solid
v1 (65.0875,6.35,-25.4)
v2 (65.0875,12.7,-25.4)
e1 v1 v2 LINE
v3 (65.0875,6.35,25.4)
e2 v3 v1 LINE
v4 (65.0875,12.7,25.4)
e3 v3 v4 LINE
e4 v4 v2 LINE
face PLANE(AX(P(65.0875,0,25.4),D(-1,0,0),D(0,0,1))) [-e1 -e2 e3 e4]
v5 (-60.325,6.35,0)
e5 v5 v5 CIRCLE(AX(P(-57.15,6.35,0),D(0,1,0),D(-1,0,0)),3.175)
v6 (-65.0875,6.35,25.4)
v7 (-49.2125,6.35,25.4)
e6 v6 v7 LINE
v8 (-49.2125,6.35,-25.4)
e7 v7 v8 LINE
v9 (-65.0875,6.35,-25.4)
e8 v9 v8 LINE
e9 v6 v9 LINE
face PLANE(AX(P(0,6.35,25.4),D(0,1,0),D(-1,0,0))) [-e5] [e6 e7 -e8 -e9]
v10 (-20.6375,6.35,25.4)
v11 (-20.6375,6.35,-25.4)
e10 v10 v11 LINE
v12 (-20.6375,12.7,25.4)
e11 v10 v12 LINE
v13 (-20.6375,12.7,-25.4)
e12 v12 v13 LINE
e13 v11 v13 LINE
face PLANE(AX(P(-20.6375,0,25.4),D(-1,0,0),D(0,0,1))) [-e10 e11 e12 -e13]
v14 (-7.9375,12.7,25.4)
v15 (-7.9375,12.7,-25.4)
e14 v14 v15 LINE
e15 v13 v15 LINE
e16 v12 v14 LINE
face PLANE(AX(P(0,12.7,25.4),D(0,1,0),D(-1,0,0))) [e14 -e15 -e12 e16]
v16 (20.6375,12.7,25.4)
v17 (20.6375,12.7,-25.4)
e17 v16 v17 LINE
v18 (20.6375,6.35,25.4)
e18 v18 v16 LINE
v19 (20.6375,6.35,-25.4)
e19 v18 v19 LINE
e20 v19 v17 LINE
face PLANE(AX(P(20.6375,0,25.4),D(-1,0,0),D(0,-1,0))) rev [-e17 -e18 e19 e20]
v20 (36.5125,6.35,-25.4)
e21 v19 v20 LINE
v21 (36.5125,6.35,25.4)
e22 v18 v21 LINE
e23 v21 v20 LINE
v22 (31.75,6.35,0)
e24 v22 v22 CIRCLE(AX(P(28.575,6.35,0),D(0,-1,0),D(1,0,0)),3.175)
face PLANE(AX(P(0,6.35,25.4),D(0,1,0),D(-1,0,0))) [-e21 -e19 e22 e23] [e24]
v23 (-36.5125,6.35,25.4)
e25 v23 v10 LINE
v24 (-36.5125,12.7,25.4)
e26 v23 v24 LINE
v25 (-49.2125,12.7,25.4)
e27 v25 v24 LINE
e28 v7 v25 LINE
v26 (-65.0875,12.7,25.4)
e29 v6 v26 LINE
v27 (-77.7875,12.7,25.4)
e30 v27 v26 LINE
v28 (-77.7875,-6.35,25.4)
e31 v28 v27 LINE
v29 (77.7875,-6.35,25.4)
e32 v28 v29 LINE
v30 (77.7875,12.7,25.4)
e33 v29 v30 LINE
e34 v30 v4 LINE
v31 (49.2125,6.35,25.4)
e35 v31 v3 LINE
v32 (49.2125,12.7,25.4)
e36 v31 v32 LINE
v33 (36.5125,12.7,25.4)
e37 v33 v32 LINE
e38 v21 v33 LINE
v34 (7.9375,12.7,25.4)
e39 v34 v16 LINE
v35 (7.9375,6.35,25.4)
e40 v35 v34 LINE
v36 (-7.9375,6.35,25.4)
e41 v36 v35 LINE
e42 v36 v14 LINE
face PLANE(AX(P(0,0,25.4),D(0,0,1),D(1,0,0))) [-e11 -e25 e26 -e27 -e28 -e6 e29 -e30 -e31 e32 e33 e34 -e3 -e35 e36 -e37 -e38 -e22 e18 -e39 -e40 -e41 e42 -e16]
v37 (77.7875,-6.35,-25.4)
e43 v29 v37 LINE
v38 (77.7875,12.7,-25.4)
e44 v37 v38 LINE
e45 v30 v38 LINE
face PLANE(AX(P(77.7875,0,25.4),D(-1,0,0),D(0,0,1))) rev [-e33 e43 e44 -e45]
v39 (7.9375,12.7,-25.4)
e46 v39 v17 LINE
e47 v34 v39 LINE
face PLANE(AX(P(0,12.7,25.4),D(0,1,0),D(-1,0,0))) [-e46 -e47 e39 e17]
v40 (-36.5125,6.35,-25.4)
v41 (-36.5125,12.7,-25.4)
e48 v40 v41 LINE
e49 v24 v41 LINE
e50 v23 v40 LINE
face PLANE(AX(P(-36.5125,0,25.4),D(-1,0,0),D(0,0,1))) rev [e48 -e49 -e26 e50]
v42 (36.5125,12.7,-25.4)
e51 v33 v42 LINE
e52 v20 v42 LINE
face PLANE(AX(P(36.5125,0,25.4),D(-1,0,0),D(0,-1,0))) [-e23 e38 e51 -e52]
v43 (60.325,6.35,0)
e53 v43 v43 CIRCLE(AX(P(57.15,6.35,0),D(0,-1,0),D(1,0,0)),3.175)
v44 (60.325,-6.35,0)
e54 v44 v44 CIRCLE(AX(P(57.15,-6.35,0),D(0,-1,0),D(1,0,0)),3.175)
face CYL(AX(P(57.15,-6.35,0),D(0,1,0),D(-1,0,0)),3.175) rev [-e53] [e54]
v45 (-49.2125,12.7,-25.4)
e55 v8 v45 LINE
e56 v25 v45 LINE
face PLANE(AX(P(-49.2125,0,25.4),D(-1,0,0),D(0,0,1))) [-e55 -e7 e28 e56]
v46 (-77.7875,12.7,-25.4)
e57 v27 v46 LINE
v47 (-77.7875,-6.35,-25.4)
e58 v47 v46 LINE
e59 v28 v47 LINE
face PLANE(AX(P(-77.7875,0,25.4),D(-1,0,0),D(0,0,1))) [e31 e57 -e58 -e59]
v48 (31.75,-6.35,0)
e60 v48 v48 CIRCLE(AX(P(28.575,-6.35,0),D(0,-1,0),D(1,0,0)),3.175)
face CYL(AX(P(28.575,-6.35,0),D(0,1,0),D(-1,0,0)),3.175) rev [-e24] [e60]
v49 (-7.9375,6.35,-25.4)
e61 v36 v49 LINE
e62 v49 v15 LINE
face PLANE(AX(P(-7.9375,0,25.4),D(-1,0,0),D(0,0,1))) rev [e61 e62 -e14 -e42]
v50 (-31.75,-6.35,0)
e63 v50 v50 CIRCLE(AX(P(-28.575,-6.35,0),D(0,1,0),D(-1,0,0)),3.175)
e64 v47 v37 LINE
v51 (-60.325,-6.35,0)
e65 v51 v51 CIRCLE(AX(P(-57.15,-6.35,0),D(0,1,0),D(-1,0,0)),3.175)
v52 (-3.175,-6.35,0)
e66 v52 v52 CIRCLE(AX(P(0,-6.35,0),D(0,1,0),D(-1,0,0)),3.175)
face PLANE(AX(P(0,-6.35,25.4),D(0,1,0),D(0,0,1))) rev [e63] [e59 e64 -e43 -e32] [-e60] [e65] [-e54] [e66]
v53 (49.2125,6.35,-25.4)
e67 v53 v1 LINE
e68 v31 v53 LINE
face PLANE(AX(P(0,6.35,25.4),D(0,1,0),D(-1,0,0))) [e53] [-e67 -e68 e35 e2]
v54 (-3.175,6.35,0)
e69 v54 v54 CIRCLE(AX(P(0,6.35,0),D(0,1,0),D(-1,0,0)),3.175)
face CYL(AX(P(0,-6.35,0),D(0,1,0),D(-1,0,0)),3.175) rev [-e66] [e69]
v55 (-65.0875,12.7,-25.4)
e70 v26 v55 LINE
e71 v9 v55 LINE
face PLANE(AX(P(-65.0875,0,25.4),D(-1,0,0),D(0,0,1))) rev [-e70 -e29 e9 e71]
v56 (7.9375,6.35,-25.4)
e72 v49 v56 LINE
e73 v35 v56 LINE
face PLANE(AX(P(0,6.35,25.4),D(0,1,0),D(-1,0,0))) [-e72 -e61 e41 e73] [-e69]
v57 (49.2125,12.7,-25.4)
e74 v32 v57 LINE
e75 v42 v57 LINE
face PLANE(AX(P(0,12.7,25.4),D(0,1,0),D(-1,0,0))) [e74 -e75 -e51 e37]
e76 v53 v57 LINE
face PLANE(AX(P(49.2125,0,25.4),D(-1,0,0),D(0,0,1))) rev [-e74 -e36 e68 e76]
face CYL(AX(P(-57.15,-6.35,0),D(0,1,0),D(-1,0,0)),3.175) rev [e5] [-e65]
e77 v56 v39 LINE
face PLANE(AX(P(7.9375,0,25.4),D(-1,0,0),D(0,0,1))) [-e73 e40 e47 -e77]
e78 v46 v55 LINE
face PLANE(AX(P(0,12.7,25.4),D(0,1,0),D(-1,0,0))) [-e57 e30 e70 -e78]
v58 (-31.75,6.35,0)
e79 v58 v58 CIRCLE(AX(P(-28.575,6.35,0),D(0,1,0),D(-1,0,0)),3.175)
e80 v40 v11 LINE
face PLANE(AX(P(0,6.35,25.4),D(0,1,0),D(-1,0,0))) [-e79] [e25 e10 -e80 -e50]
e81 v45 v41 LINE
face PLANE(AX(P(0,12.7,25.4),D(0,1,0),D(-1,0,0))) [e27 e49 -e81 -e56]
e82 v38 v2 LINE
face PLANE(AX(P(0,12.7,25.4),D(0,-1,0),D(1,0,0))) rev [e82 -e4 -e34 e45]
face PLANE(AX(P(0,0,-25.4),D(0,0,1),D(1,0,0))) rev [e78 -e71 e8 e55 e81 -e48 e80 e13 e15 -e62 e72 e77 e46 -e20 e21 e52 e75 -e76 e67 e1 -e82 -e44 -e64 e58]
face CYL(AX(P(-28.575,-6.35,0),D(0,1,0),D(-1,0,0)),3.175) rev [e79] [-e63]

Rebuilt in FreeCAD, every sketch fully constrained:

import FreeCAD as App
import Part
import Sketcher
from FreeCAD import Vector
Q = App.Units.Quantity

doc = App.newDocument("Part")
body = doc.addObject("PartDesign::Body", "Body")

# Sketch on XY plane
sketch1 = body.newObject("Sketcher::SketchObject", "Sketch")
sketch1.AttachmentSupport = (doc.getObject("XY_Plane"), [""])
sketch1.MapMode = "FlatFace"
sketch1.addGeometry([
    Part.LineSegment(Vector(-78, -6, 0), Vector(78, -6, 0)),  # 0
    Part.LineSegment(Vector(78, -6, 0), Vector(78, 13, 0)),  # 1
    Part.LineSegment(Vector(78, 13, 0), Vector(65, 13, 0)),  # 2
    Part.LineSegment(Vector(65, 13, 0), Vector(65, 6, 0)),  # 3
    Part.LineSegment(Vector(65, 6, 0), Vector(49, 6, 0)),  # 4
    Part.LineSegment(Vector(49, 6, 0), Vector(49, 13, 0)),  # 5
    Part.LineSegment(Vector(49, 13, 0), Vector(37, 13, 0)),  # 6
    Part.LineSegment(Vector(37, 13, 0), Vector(37, 6, 0)),  # 7
    Part.LineSegment(Vector(37, 6, 0), Vector(21, 6, 0)),  # 8
    Part.LineSegment(Vector(21, 6, 0), Vector(21, 13, 0)),  # 9
    Part.LineSegment(Vector(21, 13, 0), Vector(8, 13, 0)),  # 10
    Part.LineSegment(Vector(8, 13, 0), Vector(8, 6, 0)),  # 11
    Part.LineSegment(Vector(8, 6, 0), Vector(-8, 6, 0)),  # 12
    Part.LineSegment(Vector(-8, 6, 0), Vector(-8, 13, 0)),  # 13
    Part.LineSegment(Vector(-8, 13, 0), Vector(-21, 13, 0)),  # 14
    Part.LineSegment(Vector(-21, 13, 0), Vector(-21, 6, 0)),  # 15
    Part.LineSegment(Vector(-21, 6, 0), Vector(-37, 6, 0)),  # 16
    Part.LineSegment(Vector(-37, 6, 0), Vector(-37, 13, 0)),  # 17
    Part.LineSegment(Vector(-37, 13, 0), Vector(-49, 13, 0)),  # 18
    Part.LineSegment(Vector(-49, 13, 0), Vector(-49, 6, 0)),  # 19
    Part.LineSegment(Vector(-49, 6, 0), Vector(-65, 6, 0)),  # 20
    Part.LineSegment(Vector(-65, 6, 0), Vector(-65, 13, 0)),  # 21
    Part.LineSegment(Vector(-65, 13, 0), Vector(-78, 13, 0)),  # 22
    Part.LineSegment(Vector(-78, 13, 0), Vector(-78, -6, 0)),  # 23
], False)
sketch1.addConstraint([
    Sketcher.Constraint("Coincident", 0, 2, 1, 1),
    Sketcher.Constraint("Coincident", 1, 2, 2, 1),
    Sketcher.Constraint("Coincident", 2, 2, 3, 1),
    Sketcher.Constraint("Coincident", 3, 2, 4, 1),
    Sketcher.Constraint("Coincident", 4, 2, 5, 1),
    Sketcher.Constraint("Coincident", 5, 2, 6, 1),
    Sketcher.Constraint("Coincident", 6, 2, 7, 1),
    Sketcher.Constraint("Coincident", 7, 2, 8, 1),
    Sketcher.Constraint("Coincident", 8, 2, 9, 1),
    Sketcher.Constraint("Coincident", 9, 2, 10, 1),
    Sketcher.Constraint("Coincident", 10, 2, 11, 1),
    Sketcher.Constraint("Coincident", 11, 2, 12, 1),
    Sketcher.Constraint("Coincident", 12, 2, 13, 1),
    Sketcher.Constraint("Coincident", 13, 2, 14, 1),
    Sketcher.Constraint("Coincident", 14, 2, 15, 1),
    Sketcher.Constraint("Coincident", 15, 2, 16, 1),
    Sketcher.Constraint("Coincident", 16, 2, 17, 1),
    Sketcher.Constraint("Coincident", 17, 2, 18, 1),
    Sketcher.Constraint("Coincident", 18, 2, 19, 1),
    Sketcher.Constraint("Coincident", 19, 2, 20, 1),
    Sketcher.Constraint("Coincident", 20, 2, 21, 1),
    Sketcher.Constraint("Coincident", 21, 2, 22, 1),
    Sketcher.Constraint("Coincident", 22, 2, 23, 1),
    Sketcher.Constraint("Coincident", 23, 2, 0, 1),
    Sketcher.Constraint("Horizontal", 0),
    Sketcher.Constraint("Vertical", 1),
    Sketcher.Constraint("Horizontal", 2),
    Sketcher.Constraint("Vertical", 3),
    Sketcher.Constraint("Horizontal", 4),
    Sketcher.Constraint("Vertical", 5),
    Sketcher.Constraint("Horizontal", 6),
    Sketcher.Constraint("Vertical", 7),
    Sketcher.Constraint("Horizontal", 8),
    Sketcher.Constraint("Vertical", 9),
    Sketcher.Constraint("Horizontal", 10),
    Sketcher.Constraint("Vertical", 11),
    Sketcher.Constraint("Horizontal", 12),
    Sketcher.Constraint("Vertical", 13),
    Sketcher.Constraint("Horizontal", 14),
    Sketcher.Constraint("Vertical", 15),
    Sketcher.Constraint("Horizontal", 16),
    Sketcher.Constraint("Vertical", 17),
    Sketcher.Constraint("Horizontal", 18),
    Sketcher.Constraint("Vertical", 19),
    Sketcher.Constraint("Horizontal", 20),
    Sketcher.Constraint("Vertical", 21),
    Sketcher.Constraint("Horizontal", 22),
    Sketcher.Constraint("Vertical", 23),
    Sketcher.Constraint("Symmetric", 10, 2, 13, 2, -2),
    Sketcher.Constraint("Symmetric", 8, 2, 15, 2, -2),
    Sketcher.Constraint("Symmetric", 6, 2, 17, 2, -2),
    Sketcher.Constraint("Symmetric", 4, 2, 19, 2, -2),
    Sketcher.Constraint("Symmetric", 2, 2, 21, 2, -2),
    Sketcher.Constraint("Horizontal", 2, 2, 5, 2),
    Sketcher.Constraint("Horizontal", 4, 2, 7, 2),
    Sketcher.Constraint("Horizontal", 6, 2, 9, 2),
    Sketcher.Constraint("Horizontal", 8, 2, 11, 2),
    Sketcher.Constraint("Equal", 2, 6),
    Sketcher.Constraint("Equal", 4, 8),
    Sketcher.Constraint("Equal", 6, 10),
    Sketcher.Constraint("Equal", 8, 12),
    Sketcher.Constraint("Equal", 18, 22),
    Sketcher.Constraint("DistanceX", 2, 2, 2, 1, Q("0.5 in")),
    Sketcher.Constraint("DistanceY", 1, 1, 1, 2, Q("0.75 in")),
    Sketcher.Constraint("DistanceY", 3, 2, 3, 1, Q("0.25 in")),
    Sketcher.Constraint("DistanceY", -1, 1, 1, 2, Q("0.5 in")),
    Sketcher.Constraint("DistanceX", 0, 1, 0, 2, Q("6.125 in")),
])
pad1 = body.newObject("PartDesign::Pad", "Pad")
pad1.Profile = sketch1
pad1.Length = Q("2 in")
pad1.Midplane = True

# Sketch on XZ plane
sketch2 = body.newObject("Sketcher::SketchObject", "Sketch001")
sketch2.AttachmentSupport = (doc.getObject("XZ_Plane"), [""])
sketch2.MapMode = "FlatFace"
sketch2.AttachmentOffset = App.Placement(Vector(0, 0, -0.25 * 25.4), App.Rotation())
sketch2.addGeometry([
    Part.Circle(Vector(0, 0, 0), Vector(0, 0, 1), 3.2),
    Part.Circle(Vector(-28.6, 0, 0), Vector(0, 0, 1), 3.2),
    Part.Circle(Vector(-57.1, 0, 0), Vector(0, 0, 1), 3.2),
], False)
sketch2.addConstraint([
    Sketcher.Constraint("Coincident", 0, 3, -1, 1),
    Sketcher.Constraint("Equal", 0, 1),
    Sketcher.Constraint("Equal", 1, 2),
    Sketcher.Constraint("PointOnObject", 1, 3, -1),
    Sketcher.Constraint("PointOnObject", 2, 3, -1),
    Sketcher.Constraint("Diameter", 0, Q("0.25 in")),
    Sketcher.Constraint("DistanceX", 2, 3, -1, 1, Q("2.25 in")),
    Sketcher.Constraint("DistanceX", 1, 3, -1, 1, Q("1.125 in")),
])
pocket1 = body.newObject("PartDesign::Pocket", "Pocket")
pocket1.Profile = sketch2
pocket1.Type = "ThroughAll"
pocket1.Reversed = True
doc.recompute()

mirrored = body.newObject("PartDesign::Mirrored", "Mirrored")
mirrored.Originals = [pocket1]
mirrored.MirrorPlane = (doc.getObject("YZ_Plane"), [""])
body.Tip = mirrored

doc.recompute()
